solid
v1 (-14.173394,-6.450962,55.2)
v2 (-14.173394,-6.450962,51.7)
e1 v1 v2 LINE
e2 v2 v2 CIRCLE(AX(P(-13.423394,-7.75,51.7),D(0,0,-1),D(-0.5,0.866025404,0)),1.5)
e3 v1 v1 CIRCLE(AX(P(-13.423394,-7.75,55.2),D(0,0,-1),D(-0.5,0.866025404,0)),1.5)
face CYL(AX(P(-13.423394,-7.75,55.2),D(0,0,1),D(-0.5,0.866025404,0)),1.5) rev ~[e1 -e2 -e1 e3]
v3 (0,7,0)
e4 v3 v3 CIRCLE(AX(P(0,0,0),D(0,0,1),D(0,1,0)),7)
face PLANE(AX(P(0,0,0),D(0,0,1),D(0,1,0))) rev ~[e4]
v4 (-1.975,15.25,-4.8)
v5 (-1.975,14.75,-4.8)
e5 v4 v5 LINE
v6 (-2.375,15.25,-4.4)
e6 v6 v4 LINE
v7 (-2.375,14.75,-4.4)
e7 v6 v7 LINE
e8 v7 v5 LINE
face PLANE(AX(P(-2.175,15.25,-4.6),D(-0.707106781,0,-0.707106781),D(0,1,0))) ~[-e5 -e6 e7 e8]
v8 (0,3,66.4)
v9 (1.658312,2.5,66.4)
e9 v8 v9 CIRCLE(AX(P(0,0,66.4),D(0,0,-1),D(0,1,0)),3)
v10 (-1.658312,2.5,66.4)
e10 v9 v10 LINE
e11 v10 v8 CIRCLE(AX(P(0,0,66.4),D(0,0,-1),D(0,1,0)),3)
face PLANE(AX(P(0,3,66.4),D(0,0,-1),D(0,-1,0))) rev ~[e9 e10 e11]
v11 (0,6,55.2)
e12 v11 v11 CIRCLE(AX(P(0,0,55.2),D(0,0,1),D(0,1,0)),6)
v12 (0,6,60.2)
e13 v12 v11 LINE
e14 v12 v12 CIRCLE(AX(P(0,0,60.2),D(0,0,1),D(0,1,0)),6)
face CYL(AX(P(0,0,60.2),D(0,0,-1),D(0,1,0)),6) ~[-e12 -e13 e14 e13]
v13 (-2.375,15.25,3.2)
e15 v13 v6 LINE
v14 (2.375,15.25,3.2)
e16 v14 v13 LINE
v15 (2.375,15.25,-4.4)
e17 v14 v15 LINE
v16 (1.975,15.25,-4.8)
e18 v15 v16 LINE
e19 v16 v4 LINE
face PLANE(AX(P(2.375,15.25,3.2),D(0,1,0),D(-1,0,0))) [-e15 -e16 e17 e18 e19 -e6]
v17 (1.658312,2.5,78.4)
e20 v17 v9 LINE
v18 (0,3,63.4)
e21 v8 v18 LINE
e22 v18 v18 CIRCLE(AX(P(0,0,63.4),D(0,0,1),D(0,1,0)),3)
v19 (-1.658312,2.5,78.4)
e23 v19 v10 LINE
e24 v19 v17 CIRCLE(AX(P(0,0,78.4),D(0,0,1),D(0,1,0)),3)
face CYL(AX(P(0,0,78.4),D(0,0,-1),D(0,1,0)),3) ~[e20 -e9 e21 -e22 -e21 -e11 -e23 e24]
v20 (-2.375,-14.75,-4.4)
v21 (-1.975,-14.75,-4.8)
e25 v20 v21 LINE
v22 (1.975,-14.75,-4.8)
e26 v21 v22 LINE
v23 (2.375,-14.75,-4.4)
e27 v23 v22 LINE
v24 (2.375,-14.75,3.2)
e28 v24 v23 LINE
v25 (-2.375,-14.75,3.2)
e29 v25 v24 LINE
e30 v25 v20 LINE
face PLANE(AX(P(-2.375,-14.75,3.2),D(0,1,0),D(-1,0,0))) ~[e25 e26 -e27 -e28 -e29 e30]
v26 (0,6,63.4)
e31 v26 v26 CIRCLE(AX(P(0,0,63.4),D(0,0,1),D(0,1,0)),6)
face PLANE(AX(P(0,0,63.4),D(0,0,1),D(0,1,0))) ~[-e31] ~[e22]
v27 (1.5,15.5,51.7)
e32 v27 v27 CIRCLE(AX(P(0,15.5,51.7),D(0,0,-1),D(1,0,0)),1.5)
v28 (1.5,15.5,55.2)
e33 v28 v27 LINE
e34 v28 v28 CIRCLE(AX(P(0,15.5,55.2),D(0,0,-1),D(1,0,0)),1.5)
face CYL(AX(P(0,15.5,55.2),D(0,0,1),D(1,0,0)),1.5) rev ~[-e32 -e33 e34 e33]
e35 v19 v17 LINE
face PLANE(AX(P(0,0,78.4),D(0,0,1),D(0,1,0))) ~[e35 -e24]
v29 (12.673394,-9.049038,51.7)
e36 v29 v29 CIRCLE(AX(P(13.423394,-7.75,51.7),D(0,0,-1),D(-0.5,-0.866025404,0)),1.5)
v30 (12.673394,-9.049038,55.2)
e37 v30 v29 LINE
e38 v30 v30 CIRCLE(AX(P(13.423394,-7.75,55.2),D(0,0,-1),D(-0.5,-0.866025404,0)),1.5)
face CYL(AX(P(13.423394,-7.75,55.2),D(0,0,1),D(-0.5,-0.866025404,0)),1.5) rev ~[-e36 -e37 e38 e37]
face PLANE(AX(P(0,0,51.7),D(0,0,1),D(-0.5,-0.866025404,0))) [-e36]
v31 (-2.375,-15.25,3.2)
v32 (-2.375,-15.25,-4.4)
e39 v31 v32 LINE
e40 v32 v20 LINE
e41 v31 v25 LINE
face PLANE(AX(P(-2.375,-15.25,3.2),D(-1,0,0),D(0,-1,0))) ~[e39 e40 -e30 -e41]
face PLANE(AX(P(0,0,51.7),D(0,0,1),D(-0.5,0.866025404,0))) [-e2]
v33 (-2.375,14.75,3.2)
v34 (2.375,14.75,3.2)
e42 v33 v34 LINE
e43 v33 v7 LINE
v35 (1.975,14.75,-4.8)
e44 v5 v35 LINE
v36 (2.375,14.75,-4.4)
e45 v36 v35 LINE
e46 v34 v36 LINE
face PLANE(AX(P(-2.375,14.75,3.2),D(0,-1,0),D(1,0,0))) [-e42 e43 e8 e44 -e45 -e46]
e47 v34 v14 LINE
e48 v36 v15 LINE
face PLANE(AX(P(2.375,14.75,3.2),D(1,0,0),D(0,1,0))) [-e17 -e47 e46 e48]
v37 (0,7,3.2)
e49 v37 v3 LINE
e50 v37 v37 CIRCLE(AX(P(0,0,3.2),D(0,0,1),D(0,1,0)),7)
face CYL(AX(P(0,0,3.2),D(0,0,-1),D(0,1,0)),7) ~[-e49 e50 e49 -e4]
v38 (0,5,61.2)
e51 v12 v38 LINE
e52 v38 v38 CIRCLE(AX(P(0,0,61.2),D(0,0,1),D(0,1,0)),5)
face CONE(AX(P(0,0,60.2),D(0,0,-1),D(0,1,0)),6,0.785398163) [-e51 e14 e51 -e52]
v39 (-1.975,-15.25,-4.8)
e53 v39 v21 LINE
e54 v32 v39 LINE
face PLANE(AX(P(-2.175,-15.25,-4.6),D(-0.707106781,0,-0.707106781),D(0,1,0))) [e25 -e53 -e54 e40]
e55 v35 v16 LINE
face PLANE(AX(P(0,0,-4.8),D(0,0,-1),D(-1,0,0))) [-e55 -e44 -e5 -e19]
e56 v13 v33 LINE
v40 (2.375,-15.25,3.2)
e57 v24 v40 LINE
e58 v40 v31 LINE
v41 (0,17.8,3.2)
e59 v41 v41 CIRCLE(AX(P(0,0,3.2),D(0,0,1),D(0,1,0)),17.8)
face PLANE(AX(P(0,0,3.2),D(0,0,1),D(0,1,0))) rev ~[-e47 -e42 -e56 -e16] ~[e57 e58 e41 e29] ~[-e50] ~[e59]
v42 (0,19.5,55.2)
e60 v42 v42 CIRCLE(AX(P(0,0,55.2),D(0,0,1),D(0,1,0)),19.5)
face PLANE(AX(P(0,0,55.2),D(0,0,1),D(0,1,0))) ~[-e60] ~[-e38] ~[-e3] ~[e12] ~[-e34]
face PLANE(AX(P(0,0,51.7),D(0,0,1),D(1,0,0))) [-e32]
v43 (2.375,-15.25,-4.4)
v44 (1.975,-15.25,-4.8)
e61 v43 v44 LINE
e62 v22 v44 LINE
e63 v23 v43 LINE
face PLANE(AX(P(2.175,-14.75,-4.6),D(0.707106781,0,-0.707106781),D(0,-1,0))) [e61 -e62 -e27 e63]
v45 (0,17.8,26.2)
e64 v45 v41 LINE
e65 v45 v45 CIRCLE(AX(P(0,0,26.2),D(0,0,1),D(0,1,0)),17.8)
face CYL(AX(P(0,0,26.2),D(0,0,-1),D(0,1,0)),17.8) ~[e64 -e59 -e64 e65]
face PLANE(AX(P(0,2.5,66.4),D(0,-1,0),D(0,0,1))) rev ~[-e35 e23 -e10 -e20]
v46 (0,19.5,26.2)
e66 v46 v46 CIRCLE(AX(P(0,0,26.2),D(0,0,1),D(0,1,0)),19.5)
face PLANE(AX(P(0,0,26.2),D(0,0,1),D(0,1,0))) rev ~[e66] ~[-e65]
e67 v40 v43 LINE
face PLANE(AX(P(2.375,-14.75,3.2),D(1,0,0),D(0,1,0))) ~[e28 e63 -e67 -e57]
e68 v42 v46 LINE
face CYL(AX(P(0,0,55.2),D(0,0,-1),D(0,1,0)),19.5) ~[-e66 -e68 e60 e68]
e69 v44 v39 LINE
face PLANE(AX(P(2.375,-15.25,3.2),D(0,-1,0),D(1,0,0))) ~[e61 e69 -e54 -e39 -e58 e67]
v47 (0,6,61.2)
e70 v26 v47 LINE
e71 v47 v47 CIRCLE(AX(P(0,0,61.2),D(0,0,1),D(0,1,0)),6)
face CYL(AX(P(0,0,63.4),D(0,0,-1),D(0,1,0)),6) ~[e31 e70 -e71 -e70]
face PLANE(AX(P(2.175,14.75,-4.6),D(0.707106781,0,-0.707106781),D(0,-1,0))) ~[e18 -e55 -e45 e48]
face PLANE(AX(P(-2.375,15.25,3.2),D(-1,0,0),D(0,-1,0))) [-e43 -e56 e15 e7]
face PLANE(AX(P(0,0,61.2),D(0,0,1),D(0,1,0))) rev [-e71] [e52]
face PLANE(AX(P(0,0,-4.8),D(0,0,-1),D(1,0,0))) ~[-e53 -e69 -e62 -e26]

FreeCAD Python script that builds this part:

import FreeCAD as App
import Part
import Sketcher
from FreeCAD import Vector


def edges_at(feature, points):
    """Names of the edges that pass closest to the given points."""
    edges = feature.Shape.Edges
    near = lambda p: min(range(len(edges)), key=lambda i: edges[i].distToShape(Part.Vertex(*p))[0])
    return sorted({f"Edge{near(p) + 1}" for p in points})

doc = App.newDocument("Part")
body = doc.addObject("PartDesign::Body", "Body")

sketch1 = body.newObject("Sketcher::SketchObject", "Sketch")
sketch1.AttachmentSupport = (doc.getObject("YZ_Plane"), [""])
sketch1.MapMode = "FlatFace"
sketch1.addGeometry([
    Part.LineSegment(Vector(0, 0, 0), Vector(7, 0, 0)),
    Part.LineSegment(Vector(7, 0, 0), Vector(7, 3.2, 0)),
    Part.LineSegment(Vector(7, 3.2, 0), Vector(17.8, 3.2, 0)),
    Part.LineSegment(Vector(17.8, 3.2, 0), Vector(17.8, 26.2, 0)),
    Part.LineSegment(Vector(17.8, 26.2, 0), Vector(19.5, 26.2, 0)),
    Part.LineSegment(Vector(19.5, 26.2, 0), Vector(19.5, 55.2, 0)),
    Part.LineSegment(Vector(19.5, 55.2, 0), Vector(6, 55.2, 0)),
    Part.LineSegment(Vector(6, 55.2, 0), Vector(6, 60.2, 0)),
    Part.LineSegment(Vector(6, 60.2, 0), Vector(5, 61.2, 0)),
    Part.LineSegment(Vector(5, 61.2, 0), Vector(6, 61.2, 0)),
    Part.LineSegment(Vector(6, 61.2, 0), Vector(6, 63.4, 0)),
    Part.LineSegment(Vector(6, 63.4, 0), Vector(3, 63.4, 0)),
    Part.LineSegment(Vector(3, 63.4, 0), Vector(3, 78.4, 0)),
    Part.LineSegment(Vector(3, 78.4, 0), Vector(0, 78.4, 0)),
    Part.LineSegment(Vector(0, 78.4, 0), Vector(0, 0, 0)),
], False)
sketch1.addConstraint([
    Sketcher.Constraint("Coincident", 0, 2, 1, 1),
    Sketcher.Constraint("Coincident", 1, 2, 2, 1),
    Sketcher.Constraint("Coincident", 2, 2, 3, 1),
    Sketcher.Constraint("Coincident", 3, 2, 4, 1),
    Sketcher.Constraint("Coincident", 4, 2, 5, 1),
    Sketcher.Constraint("Coincident", 5, 2, 6, 1),
    Sketcher.Constraint("Coincident", 6, 2, 7, 1),
    Sketcher.Constraint("Coincident", 7, 2, 8, 1),
    Sketcher.Constraint("Coincident", 8, 2, 9, 1),
    Sketcher.Constraint("Coincident", 9, 2, 10, 1),
    Sketcher.Constraint("Coincident", 10, 2, 11, 1),
    Sketcher.Constraint("Coincident", 11, 2, 12, 1),
    Sketcher.Constraint("Coincident", 12, 2, 13, 1),
    Sketcher.Constraint("Coincident", 13, 2, 14, 1),
    Sketcher.Constraint("Coincident", 14, 2, 0, 1),
    Sketcher.Constraint("Horizontal", 0),
    Sketcher.Constraint("Vertical", 1),
    Sketcher.Constraint("Horizontal", 2),
    Sketcher.Constraint("Vertical", 3),
    Sketcher.Constraint("Horizontal", 4),
    Sketcher.Constraint("Vertical", 5),
    Sketcher.Constraint("Horizontal", 6),
    Sketcher.Constraint("Vertical", 7),
    Sketcher.Constraint("Horizontal", 9),
    Sketcher.Constraint("Vertical", 10),
    Sketcher.Constraint("Horizontal", 11),
    Sketcher.Constraint("Vertical", 12),
    Sketcher.Constraint("Horizontal", 13),
    Sketcher.Constraint("Vertical", 14),
    Sketcher.Constraint("Coincident", 14, 2, -1, 1),
    Sketcher.Constraint("Vertical", 7, 2, 9, 2),
    Sketcher.Constraint("Equal", 11, 13),
    Sketcher.Constraint("DistanceX", 0, 1, 0, 2, 7.0),
    Sketcher.Constraint("DistanceX", 9, 1, 9, 2, 1.0),
    Sketcher.Constraint("DistanceX", 11, 2, 11, 1, 3.0),
    Sketcher.Constraint("DistanceY", 5, 1, 5, 2, 29.0),
    Sketcher.Constraint("DistanceY", 1, 1, 1, 2, 3.2),
    Sketcher.Constraint("DistanceY", 10, 1, 10, 2, 2.2),
    Sketcher.Constraint("DistanceY", 2, 2, 5, 2, 52.0),
    Sketcher.Constraint("DistanceY", 7, 2, 8, 2, 1.0),
    Sketcher.Constraint("DistanceY", 6, 2, 8, 2, 6.0),
    Sketcher.Constraint("DistanceX", -1, 1, 2, 2, 17.8),
    Sketcher.Constraint("DistanceX", -1, 1, 4, 2, 19.5),
    Sketcher.Constraint("DistanceY", 12, 1, 12, 2, 15.0),
])
revolution = body.newObject("PartDesign::Revolution", "Revolution")
revolution.Profile = sketch1
revolution.ReferenceAxis = (sketch1, ["V_Axis"])
revolution.Angle = 360

sketch2 = body.newObject("Sketcher::SketchObject", "Sketch001")
sketch2.AttachmentSupport = (doc.getObject("YZ_Plane"), [""])
sketch2.MapMode = "FlatFace"
sketch2.addGeometry([
    Part.LineSegment(Vector(3, 66.4, 0), Vector(3, 78.4, 0)),
    Part.LineSegment(Vector(3, 78.4, 0), Vector(2.5, 78.4, 0)),
    Part.LineSegment(Vector(2.5, 78.4, 0), Vector(2.5, 66.4, 0)),
    Part.LineSegment(Vector(2.5, 66.4, 0), Vector(3, 66.4, 0)),
], False)
sketch2.addConstraint([
    Sketcher.Constraint("Coincident", 0, 2, 1, 1),
    Sketcher.Constraint("Coincident", 1, 2, 2, 1),
    Sketcher.Constraint("Coincident", 2, 2, 3, 1),
    Sketcher.Constraint("Coincident", 3, 2, 0, 1),
    Sketcher.Constraint("Vertical", 0),
    Sketcher.Constraint("Horizontal", 1),
    Sketcher.Constraint("Vertical", 2),
    Sketcher.Constraint("Horizontal", 3),
    Sketcher.Constraint("DistanceY", 0, 1, 0, 2, 12.0),
    Sketcher.Constraint("DistanceX", 1, 2, 1, 1, 0.5),
    Sketcher.Constraint("DistanceX", -1, 1, 0, 2, 3.0),
    Sketcher.Constraint("DistanceY", -1, 1, 0, 2, 78.4),
])
pocket1 = body.newObject("PartDesign::Pocket", "Pocket")
pocket1.Profile = sketch2
pocket1.Type = "ThroughAll"
pocket1.Midplane = True

sketch3 = body.newObject("Sketcher::SketchObject", "Sketch002")
sketch3.AttachmentSupport = (doc.getObject("XY_Plane"), [""])
sketch3.MapMode = "FlatFace"
sketch3.AttachmentOffset = App.Placement(Vector(0, 0, 3.2), App.Rotation())
sketch3.addGeometry([
    Part.LineSegment(Vector(2.375, 14.75, 0), Vector(-2.375, 14.75, 0)),
    Part.LineSegment(Vector(-2.375, 14.75, 0), Vector(-2.375, 15.25, 0)),
    Part.LineSegment(Vector(-2.375, 15.25, 0), Vector(2.375, 15.25, 0)),
    Part.LineSegment(Vector(2.375, 15.25, 0), Vector(2.375, 14.75, 0)),
], False)
sketch3.addConstraint([
    Sketcher.Constraint("Coincident", 0, 2, 1, 1),
    Sketcher.Constraint("Coincident", 1, 2, 2, 1),
    Sketcher.Constraint("Coincident", 2, 2, 3, 1),
    Sketcher.Constraint("Coincident", 3, 2, 0, 1),
    Sketcher.Constraint("Horizontal", 0),
    Sketcher.Constraint("Vertical", 1),
    Sketcher.Constraint("Horizontal", 2),
    Sketcher.Constraint("Vertical", 3),
    Sketcher.Constraint("DistanceY", 1, 1, 1, 2, 0.5),
    Sketcher.Constraint("DistanceX", 0, 2, 0, 1, 4.75),
    Sketcher.Constraint("DistanceY", -1, 1, 0, 2, 14.75),
    Sketcher.Constraint("DistanceX", 0, 2, -1, 1, 2.375),
])
pad1 = body.newObject("PartDesign::Pad", "Pad")
pad1.Profile = sketch3
pad1.Length = 8
pad1.Reversed = True
doc.recompute()

mirrored = body.newObject("PartDesign::Mirrored", "Mirrored")
mirrored.Originals = [pad1]
mirrored.MirrorPlane = (doc.getObject("XZ_Plane"), [""])
body.Tip = mirrored

sketch4 = body.newObject("Sketcher::SketchObject", "Sketch003")
sketch4.AttachmentSupport = (doc.getObject("XZ_Plane"), [""])
sketch4.MapMode = "FlatFace"
sketch4.AttachmentOffset = App.Placement(Vector(0, 0, -15.25), App.Rotation())
sketch4.addGeometry(Part.Circle(Vector(0, -1.6, 0), Vector(0, 0, 1), 1), False)
sketch4.addConstraint([
    Sketcher.Constraint("PointOnObject", 0, 3, -2),
    Sketcher.Constraint("Diameter", 0, 2.0),
    Sketcher.Constraint("DistanceY", 0, 3, -1, 1, 1.6),
])
pocket2 = body.newObject("PartDesign::Pocket", "Pocket001")
pocket2.Profile = sketch4
pocket2.Type = "ThroughAll"
doc.recompute()

chamfer = body.newObject("PartDesign::Chamfer", "Chamfer")
chamfer.Base = (pocket2, edges_at(pocket2, [
    (-2.375, 15, -4.8),
    (2.375, 15, -4.8),
    (2.375, -15, -4.8),
    (-2.375, -15, -4.8),
]))
chamfer.Size = 0.4

sketch5 = body.newObject("Sketcher::SketchObject", "Sketch004")
sketch5.AttachmentSupport = (doc.getObject("XY_Plane"), [""])
sketch5.MapMode = "FlatFace"
sketch5.AttachmentOffset = App.Placement(Vector(0, 0, 55.2), App.Rotation())
sketch5.addGeometry(Part.Circle(Vector(0, 15.5, 0), Vector(0, 0, 1), 1.5), False)
sketch5.addConstraint([
    Sketcher.Constraint("PointOnObject", 0, 3, -2),
    Sketcher.Constraint("Diameter", 0, 3.0),
    Sketcher.Constraint("DistanceY", -1, 1, 0, 3, 15.5),
])
pocket3 = body.newObject("PartDesign::Pocket", "Pocket002")
pocket3.Profile = sketch5
pocket3.Length = 3.5
doc.recompute()

polarpattern = body.newObject("PartDesign::PolarPattern", "PolarPattern")
polarpattern.Originals = [pocket3]
polarpattern.Axis = (doc.getObject("Z_Axis"), [""])
polarpattern.Angle = 360
polarpattern.Occurrences = 3
body.Tip = polarpattern

doc.recompute()
